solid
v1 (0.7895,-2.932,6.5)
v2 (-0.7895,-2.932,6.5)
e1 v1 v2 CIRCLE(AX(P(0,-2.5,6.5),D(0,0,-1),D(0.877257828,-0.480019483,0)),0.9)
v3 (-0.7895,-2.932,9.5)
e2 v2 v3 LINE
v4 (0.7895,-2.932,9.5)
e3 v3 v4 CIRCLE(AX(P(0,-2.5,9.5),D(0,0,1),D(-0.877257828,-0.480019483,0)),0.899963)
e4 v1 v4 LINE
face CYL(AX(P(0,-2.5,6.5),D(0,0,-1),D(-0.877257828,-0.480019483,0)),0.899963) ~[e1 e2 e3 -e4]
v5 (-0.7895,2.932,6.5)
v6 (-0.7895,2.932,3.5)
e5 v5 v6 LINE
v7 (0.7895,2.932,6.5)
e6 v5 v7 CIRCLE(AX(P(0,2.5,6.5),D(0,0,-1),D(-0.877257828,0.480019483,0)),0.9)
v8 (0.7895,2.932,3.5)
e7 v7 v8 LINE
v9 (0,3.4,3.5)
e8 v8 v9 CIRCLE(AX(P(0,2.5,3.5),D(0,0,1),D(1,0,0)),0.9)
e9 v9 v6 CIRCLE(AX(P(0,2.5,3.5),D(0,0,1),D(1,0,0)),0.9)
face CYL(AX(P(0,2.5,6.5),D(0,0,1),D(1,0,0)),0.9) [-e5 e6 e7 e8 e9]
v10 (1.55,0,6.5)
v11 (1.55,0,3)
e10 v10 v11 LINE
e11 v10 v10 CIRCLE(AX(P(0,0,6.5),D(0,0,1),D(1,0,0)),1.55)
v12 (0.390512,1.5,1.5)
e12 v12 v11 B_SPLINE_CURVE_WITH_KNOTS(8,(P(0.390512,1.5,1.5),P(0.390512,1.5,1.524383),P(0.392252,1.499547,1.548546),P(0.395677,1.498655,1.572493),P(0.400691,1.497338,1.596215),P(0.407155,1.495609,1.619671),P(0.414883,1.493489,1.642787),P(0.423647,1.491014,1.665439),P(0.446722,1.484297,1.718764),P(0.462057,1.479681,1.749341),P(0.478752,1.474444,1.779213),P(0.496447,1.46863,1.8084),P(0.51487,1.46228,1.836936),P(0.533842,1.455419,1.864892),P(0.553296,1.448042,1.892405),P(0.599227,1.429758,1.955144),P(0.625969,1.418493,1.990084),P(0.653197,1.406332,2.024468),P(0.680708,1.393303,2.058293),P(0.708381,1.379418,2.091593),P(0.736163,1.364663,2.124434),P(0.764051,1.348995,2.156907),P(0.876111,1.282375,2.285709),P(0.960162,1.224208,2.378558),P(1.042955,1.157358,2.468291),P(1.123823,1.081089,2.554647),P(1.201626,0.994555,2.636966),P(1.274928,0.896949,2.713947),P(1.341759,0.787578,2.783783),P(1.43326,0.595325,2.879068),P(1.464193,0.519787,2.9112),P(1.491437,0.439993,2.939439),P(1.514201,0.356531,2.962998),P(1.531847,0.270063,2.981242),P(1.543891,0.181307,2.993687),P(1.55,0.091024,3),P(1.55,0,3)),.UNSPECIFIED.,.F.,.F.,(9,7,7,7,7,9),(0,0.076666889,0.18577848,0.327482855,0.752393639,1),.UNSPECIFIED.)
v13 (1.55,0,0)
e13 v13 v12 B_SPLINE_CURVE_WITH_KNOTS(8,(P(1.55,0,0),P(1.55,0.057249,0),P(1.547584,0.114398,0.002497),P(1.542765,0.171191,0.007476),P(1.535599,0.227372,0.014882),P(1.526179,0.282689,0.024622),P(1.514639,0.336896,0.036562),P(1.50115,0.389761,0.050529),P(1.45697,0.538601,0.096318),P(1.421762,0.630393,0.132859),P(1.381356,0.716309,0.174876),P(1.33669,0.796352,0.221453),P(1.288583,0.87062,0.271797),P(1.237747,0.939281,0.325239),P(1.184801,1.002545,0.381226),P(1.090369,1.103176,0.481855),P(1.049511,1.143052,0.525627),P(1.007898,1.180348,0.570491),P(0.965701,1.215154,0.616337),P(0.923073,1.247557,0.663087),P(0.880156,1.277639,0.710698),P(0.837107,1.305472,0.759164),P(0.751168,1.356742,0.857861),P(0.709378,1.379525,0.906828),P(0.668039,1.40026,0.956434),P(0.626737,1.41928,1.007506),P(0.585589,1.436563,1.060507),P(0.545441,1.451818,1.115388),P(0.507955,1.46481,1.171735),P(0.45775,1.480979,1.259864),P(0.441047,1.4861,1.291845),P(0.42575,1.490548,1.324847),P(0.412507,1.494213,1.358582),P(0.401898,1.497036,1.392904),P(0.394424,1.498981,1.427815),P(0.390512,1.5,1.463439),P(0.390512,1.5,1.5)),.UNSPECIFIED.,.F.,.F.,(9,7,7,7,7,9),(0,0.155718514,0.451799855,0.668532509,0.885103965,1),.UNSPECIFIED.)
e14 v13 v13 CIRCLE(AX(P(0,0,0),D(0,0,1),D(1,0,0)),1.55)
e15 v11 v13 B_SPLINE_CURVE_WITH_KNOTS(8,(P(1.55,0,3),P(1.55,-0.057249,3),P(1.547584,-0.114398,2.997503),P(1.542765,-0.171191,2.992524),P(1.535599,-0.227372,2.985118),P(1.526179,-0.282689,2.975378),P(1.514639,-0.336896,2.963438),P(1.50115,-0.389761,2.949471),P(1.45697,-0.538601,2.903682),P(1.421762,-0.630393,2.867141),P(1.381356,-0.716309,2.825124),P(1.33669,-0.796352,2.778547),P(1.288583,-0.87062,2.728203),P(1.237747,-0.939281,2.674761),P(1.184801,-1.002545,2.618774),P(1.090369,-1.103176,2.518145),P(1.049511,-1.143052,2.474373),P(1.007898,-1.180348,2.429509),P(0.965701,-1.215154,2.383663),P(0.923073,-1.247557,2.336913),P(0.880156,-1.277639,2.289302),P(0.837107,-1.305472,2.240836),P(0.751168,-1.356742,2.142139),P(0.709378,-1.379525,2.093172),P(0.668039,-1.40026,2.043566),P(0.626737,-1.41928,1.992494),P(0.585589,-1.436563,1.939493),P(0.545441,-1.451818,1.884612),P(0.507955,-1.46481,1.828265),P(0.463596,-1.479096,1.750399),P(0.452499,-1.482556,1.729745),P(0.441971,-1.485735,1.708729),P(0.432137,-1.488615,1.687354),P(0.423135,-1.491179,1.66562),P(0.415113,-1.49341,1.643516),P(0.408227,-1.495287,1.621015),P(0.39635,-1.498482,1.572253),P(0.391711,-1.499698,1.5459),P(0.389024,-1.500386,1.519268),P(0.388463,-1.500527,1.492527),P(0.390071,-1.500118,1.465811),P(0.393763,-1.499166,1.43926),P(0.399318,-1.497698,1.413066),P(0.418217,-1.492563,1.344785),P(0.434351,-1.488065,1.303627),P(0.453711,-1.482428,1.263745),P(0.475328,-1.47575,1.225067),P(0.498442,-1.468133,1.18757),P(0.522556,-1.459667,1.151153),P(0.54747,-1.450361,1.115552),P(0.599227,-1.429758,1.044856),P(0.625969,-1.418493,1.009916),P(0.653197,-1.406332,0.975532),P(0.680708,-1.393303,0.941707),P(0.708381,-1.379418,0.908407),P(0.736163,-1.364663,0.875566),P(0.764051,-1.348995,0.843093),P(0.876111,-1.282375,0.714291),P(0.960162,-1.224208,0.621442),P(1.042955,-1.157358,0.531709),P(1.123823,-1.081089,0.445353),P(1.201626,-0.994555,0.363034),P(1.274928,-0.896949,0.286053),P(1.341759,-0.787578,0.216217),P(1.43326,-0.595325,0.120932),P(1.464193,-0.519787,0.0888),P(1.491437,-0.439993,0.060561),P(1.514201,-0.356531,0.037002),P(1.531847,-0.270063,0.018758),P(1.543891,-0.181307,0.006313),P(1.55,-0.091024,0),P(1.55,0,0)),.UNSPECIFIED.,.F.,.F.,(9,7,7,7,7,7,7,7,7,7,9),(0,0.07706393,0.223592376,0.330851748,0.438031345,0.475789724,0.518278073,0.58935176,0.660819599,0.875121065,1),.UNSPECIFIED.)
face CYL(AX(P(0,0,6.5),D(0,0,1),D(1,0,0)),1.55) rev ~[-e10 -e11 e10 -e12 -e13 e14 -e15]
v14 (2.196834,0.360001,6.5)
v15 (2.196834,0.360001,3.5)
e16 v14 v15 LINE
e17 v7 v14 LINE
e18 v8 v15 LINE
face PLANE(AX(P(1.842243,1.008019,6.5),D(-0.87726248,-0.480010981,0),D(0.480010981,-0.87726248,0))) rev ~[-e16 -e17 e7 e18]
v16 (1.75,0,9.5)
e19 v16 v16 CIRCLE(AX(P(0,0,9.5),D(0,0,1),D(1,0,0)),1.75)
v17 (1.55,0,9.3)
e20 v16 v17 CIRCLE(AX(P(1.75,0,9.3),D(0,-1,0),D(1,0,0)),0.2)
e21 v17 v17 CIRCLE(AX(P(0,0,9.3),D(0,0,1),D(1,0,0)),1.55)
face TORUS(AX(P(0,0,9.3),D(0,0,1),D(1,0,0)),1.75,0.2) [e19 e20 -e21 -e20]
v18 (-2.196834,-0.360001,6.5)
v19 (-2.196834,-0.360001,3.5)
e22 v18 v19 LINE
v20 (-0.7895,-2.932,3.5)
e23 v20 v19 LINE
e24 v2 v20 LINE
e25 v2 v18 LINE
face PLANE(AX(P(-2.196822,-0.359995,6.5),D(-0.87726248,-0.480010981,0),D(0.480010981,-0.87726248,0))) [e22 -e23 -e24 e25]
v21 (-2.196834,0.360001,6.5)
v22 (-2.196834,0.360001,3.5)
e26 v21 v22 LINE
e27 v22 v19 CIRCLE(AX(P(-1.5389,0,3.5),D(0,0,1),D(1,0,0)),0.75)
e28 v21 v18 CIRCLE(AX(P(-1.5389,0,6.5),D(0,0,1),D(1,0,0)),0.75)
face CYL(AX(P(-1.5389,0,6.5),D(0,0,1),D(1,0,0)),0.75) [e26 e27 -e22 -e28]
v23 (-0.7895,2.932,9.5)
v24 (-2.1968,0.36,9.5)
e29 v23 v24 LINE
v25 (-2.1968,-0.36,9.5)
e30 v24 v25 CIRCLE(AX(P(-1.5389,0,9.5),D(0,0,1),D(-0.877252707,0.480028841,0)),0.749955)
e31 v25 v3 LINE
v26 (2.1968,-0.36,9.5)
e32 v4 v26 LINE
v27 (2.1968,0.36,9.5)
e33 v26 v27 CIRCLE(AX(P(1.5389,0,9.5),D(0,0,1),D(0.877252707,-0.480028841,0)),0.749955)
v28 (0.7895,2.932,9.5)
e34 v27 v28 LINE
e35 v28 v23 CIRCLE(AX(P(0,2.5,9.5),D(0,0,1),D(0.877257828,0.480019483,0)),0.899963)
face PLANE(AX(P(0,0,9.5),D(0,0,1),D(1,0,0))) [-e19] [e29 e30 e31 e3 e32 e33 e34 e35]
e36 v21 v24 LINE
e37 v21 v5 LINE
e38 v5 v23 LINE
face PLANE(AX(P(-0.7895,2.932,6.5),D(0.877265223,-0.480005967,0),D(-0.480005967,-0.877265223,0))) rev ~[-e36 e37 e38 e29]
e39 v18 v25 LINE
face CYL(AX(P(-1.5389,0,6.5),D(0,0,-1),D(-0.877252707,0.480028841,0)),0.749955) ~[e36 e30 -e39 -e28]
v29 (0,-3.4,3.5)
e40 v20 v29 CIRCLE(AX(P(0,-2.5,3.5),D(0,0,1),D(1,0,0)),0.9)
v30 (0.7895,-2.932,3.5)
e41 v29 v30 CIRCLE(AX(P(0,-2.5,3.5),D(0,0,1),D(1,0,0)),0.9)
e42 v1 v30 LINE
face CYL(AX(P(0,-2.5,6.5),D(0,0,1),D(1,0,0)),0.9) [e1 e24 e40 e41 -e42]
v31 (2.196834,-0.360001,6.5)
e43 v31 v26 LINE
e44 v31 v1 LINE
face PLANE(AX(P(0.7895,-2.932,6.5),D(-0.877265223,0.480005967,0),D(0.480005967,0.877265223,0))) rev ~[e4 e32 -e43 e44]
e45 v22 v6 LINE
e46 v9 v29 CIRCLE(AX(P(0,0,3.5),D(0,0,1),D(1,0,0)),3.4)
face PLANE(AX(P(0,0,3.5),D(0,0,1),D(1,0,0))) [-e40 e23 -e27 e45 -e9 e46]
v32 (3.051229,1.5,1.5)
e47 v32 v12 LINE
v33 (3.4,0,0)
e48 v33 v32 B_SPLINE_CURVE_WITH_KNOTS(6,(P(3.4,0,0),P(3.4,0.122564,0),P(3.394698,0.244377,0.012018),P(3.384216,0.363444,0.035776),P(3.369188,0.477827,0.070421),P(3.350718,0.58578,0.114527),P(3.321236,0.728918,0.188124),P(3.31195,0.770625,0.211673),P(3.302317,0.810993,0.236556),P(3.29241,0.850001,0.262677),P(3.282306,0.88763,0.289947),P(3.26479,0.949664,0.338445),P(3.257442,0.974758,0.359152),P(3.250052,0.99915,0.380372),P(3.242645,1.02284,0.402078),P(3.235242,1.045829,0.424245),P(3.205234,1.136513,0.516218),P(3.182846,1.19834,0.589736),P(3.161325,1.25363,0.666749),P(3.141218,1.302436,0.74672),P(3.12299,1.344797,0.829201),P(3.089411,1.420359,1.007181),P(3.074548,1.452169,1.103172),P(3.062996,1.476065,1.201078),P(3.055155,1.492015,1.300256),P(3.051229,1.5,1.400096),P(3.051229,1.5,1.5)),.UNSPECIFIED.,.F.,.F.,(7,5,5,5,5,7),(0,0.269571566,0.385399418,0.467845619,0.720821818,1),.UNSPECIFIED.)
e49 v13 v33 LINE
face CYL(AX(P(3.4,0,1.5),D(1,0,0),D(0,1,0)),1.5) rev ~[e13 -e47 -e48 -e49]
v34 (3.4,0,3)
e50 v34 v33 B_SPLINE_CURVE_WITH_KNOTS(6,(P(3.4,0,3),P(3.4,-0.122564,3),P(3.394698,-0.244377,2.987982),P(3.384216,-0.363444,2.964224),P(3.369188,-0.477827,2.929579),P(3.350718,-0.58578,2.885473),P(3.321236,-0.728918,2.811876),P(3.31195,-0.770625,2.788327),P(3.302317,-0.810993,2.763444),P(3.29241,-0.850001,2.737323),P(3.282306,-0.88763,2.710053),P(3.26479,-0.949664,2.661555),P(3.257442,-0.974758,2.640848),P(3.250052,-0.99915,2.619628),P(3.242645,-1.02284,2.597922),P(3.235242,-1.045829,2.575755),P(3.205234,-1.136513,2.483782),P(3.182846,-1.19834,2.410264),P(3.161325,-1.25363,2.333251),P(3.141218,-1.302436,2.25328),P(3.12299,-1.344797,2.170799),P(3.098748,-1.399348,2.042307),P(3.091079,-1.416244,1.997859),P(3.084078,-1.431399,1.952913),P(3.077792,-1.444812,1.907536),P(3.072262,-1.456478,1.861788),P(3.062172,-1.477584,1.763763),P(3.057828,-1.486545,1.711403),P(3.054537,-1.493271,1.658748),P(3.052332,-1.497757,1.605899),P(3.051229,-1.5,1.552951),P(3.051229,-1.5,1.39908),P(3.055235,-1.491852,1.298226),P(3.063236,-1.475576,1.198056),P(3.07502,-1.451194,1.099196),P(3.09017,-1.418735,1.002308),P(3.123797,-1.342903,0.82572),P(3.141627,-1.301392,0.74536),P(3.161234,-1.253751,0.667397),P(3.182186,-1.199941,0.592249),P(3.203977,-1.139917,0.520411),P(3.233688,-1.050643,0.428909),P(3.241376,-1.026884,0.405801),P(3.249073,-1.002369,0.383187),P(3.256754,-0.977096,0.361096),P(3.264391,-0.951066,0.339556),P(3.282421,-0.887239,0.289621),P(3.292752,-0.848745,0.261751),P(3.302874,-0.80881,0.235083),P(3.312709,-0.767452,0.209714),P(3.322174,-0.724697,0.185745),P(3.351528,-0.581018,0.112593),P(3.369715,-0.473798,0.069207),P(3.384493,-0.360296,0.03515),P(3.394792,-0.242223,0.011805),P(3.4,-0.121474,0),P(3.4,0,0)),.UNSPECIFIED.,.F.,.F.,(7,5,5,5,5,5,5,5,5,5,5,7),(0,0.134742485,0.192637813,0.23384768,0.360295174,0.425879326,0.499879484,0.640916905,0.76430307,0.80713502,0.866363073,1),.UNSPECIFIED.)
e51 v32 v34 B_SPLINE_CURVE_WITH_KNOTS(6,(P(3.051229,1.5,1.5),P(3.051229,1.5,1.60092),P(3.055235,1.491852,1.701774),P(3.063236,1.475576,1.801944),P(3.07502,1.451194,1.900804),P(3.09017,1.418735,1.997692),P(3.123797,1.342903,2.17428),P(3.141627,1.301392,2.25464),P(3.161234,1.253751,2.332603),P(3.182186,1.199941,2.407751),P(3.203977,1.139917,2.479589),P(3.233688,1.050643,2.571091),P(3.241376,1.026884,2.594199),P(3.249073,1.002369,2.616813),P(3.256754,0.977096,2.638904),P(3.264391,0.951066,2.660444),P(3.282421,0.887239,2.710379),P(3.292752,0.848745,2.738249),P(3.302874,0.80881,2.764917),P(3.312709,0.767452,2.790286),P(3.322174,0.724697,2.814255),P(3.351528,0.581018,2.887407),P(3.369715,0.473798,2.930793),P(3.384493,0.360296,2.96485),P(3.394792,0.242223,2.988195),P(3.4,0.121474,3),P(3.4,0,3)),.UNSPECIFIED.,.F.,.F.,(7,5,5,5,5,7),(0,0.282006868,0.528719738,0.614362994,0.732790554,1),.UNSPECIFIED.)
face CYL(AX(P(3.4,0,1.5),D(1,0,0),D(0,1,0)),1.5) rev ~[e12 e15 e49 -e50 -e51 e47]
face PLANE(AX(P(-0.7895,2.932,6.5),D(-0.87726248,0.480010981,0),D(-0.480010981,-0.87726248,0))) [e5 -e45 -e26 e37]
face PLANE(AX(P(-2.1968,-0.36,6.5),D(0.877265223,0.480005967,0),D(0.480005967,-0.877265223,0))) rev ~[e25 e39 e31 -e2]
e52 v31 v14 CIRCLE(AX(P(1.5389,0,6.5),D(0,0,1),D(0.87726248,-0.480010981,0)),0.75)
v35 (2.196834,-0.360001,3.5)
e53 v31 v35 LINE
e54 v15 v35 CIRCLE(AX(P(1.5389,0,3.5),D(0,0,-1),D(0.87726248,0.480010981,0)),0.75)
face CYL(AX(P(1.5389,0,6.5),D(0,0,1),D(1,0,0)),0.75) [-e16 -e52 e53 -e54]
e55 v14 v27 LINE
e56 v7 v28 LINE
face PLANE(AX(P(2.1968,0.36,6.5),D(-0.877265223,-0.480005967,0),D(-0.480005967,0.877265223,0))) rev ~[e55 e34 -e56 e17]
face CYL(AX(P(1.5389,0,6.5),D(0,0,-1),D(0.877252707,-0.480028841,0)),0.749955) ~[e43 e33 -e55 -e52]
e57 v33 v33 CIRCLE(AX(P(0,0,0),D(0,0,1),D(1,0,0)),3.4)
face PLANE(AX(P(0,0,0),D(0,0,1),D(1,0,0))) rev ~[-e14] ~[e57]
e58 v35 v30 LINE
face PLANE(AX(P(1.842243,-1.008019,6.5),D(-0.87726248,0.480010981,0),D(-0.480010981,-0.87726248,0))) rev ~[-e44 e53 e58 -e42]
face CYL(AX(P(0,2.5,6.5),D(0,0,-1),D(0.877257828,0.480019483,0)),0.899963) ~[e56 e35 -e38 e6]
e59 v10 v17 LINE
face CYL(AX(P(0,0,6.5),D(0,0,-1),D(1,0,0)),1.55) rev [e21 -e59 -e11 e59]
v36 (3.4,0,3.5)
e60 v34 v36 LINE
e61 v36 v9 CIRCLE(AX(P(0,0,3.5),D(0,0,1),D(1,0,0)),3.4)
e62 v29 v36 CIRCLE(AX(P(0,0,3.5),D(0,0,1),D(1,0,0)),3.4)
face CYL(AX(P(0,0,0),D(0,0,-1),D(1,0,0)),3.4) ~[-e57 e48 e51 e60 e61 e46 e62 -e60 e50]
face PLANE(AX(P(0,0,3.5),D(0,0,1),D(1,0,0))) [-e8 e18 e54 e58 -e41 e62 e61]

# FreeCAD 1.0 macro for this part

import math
import FreeCAD as App
import Part
import Sketcher

V = App.Vector
Q = App.Units.Quantity


def edges_at(feature, points):
    """Names of the edges that pass closest to the given points."""
    edges = feature.Shape.Edges
    near = lambda p: min(range(len(edges)), key=lambda i: edges[i].distToShape(Part.Vertex(*p))[0])
    return sorted({f"Edge{near(p) + 1}" for p in points})

doc = App.newDocument("Part")
params = doc.addObject("Spreadsheet::Sheet", "Params")
for row, (alias, value) in enumerate([
    ("sketch1_diameter", "6.8 mm"),
    ("pad1_length", "6.5 mm"),
    ("sketch2_diameter", "3.1 mm"),
    ("pocket1_length", "6.5 mm"),
    ("sketch3_diameter", "3 mm"),
    ("pocket2_length", "3.0095 mm"),
    ("sketch4_radius", "0.9 mm"),
    ("sketch4_radius2", "0.75 mm"),
    ("sketch4_radius3", "3.4 mm"),
    ("pocket3_length", "3 mm"),
    ("sketch5_diameter", "3.1 mm"),
    ("sketch5_radius", "0.9 mm"),
    ("sketch5_radius2", "0.75 mm"),
    ("pad2_length", "3 mm"),
    ("fillet_radius", "0.2 mm"),
], start=1):
    params.set(f"A{row}", alias)
    params.set(f"B{row}", "=" + value)
    params.setAlias(f"B{row}", alias)

body = doc.addObject("PartDesign::Body", "Body")

# Sketch on XY plane
sketch1 = body.newObject("Sketcher::SketchObject", "Sketch")
sketch1.AttachmentSupport = (doc.getObject("XY_Plane"), [""])
sketch1.MapMode = "FlatFace"
sketch1.addGeometry(Part.Circle(V(0, 0, 0), V(0, 0, 1), 3.4), False)
sketch1.addConstraint(Sketcher.Constraint("Coincident", 0, 3, -1, 1))
sketch1.addConstraint(Sketcher.Constraint("Diameter", 0, Q("6.8 mm")))
sketch1.setExpression("Constraints[1]", "Params.sketch1_diameter")
pad1 = body.newObject("PartDesign::Pad", "Pad")
pad1.Profile = sketch1
pad1.setExpression("Length", "Params.pad1_length")

# Sketch on XY plane
sketch2 = body.newObject("Sketcher::SketchObject", "Sketch001")
sketch2.AttachmentSupport = (doc.getObject("XY_Plane"), [""])
sketch2.MapMode = "FlatFace"
sketch2.AttachmentOffset = App.Placement(V(0, 0, 6.5), App.Rotation())
sketch2.addGeometry(Part.Circle(V(0, 0, 0), V(0, 0, 1), 1.6), False)
sketch2.addConstraint(Sketcher.Constraint("Coincident", 0, 3, -1, 1))
sketch2.addConstraint(Sketcher.Constraint("Diameter", 0, Q("3.1 mm")))
sketch2.setExpression("Constraints[1]", "Params.sketch2_diameter")
pocket1 = body.newObject("PartDesign::Pocket", "Pocket")
pocket1.Profile = sketch2
pocket1.setExpression("Length", "Params.pocket1_length")

# Sketch on YZ plane
sketch3 = body.newObject("Sketcher::SketchObject", "Sketch002")
sketch3.AttachmentSupport = (doc.getObject("YZ_Plane"), [""])
sketch3.MapMode = "FlatFace"
sketch3.AttachmentOffset = App.Placement(V(0, 0, 3.4), App.Rotation())
sketch3.addGeometry(Part.Circle(V(0, 1.5, 0), V(0, 0, 1), 1.5), False)
sketch3.addConstraint(Sketcher.Constraint("PointOnObject", 0, 3, -2))
sketch3.addConstraint(Sketcher.Constraint("Diameter", 0, Q("3 mm")))
sketch3.addConstraint(Sketcher.Constraint("DistanceY", -1, 1, 0, 3, Q("1.5 mm")))
sketch3.setExpression("Constraints[1]", "Params.sketch3_diameter")
pocket2 = body.newObject("PartDesign::Pocket", "Pocket001")
pocket2.Profile = sketch3
pocket2.setExpression("Length", "Params.pocket2_length")

# Sketch on XY plane
sketch4 = body.newObject("Sketcher::SketchObject", "Sketch003")
sketch4.AttachmentSupport = (doc.getObject("XY_Plane"), [""])
sketch4.MapMode = "FlatFace"
sketch4.AttachmentOffset = App.Placement(V(0, 0, 6.5), App.Rotation())
sketch4.addGeometry(Part.ArcOfCircle(Part.Circle(V(0, 2.5, 0), V(0, 0, 1), 0.9), math.radians(29), math.radians(90)), False)
sketch4.addGeometry(Part.LineSegment(V(0.8, 2.9, 0), V(2.2, 0.4, 0)), False)
sketch4.addGeometry(Part.ArcOfCircle(Part.Circle(V(1.5, 0, 0), V(0, 0, 1), 0.8), math.radians(-29), math.radians(29)), False)
sketch4.addGeometry(Part.LineSegment(V(2.2, -0.4, 0), V(0.8, -2.9, 0)), False)
sketch4.addGeometry(Part.ArcOfCircle(Part.Circle(V(0, -2.5, 0), V(0, 0, 1), 0.9), math.radians(-90), math.radians(-29)), False)
sketch4.addGeometry(Part.ArcOfCircle(Part.Circle(V(0, 0, 0), V(0, 0, 1), 3.4), math.radians(-90), math.radians(90)), False)
sketch4.addGeometry(Part.ArcOfCircle(Part.Circle(V(0, 2.5, 0), V(0, 0, 1), 0.9), math.radians(90), math.radians(151)), False)
sketch4.addGeometry(Part.ArcOfCircle(Part.Circle(V(0, 0, 0), V(0, 0, 1), 3.4), math.radians(90), math.radians(270)), False)
sketch4.addGeometry(Part.ArcOfCircle(Part.Circle(V(0, -2.5, 0), V(0, 0, 1), 0.9), math.radians(-151), math.radians(-90)), False)
sketch4.addGeometry(Part.LineSegment(V(-0.8, -2.9, 0), V(-2.2, -0.4, 0)), False)
sketch4.addGeometry(Part.ArcOfCircle(Part.Circle(V(-1.5, 0, 0), V(0, 0, 1), 0.8), math.radians(151), math.radians(209)), False)
sketch4.addGeometry(Part.LineSegment(V(-2.2, 0.4, 0), V(-0.8, 2.9, 0)), False)
sketch4.addConstraint(Sketcher.Constraint("Tangent", 0, 1, 1, 1))
sketch4.addConstraint(Sketcher.Constraint("Tangent", 1, 2, 2, 2))
sketch4.addConstraint(Sketcher.Constraint("Tangent", 2, 1, 3, 1))
sketch4.addConstraint(Sketcher.Constraint("Tangent", 3, 2, 4, 2))
sketch4.addConstraint(Sketcher.Constraint("Tangent", 4, 1, 5, 1))
sketch4.addConstraint(Sketcher.Constraint("Tangent", 5, 2, 0, 2))
sketch4.addConstraint(Sketcher.Constraint("Tangent", 6, 1, 7, 1))
sketch4.addConstraint(Sketcher.Constraint("Tangent", 7, 2, 8, 2))
sketch4.addConstraint(Sketcher.Constraint("Tangent", 8, 1, 9, 1))
sketch4.addConstraint(Sketcher.Constraint("Tangent", 9, 2, 10, 2))
sketch4.addConstraint(Sketcher.Constraint("Tangent", 10, 1, 11, 1))
sketch4.addConstraint(Sketcher.Constraint("Tangent", 11, 2, 6, 2))
sketch4.addConstraint(Sketcher.Constraint("Coincident", 5, 3, -1, 1))
sketch4.addConstraint(Sketcher.Constraint("Coincident", 7, 3, -1, 1))
sketch4.addConstraint(Sketcher.Constraint("Coincident", 6, 3, 0, 3))
sketch4.addConstraint(Sketcher.Constraint("Coincident", 8, 3, 4, 3))
sketch4.addConstraint(Sketcher.Constraint("Equal", 0, 4))
sketch4.addConstraint(Sketcher.Constraint("Equal", 4, 6))
sketch4.addConstraint(Sketcher.Constraint("Equal", 2, 10))
sketch4.addConstraint(Sketcher.Constraint("Symmetric", 2, 3, 10, 3, -1, 1))
sketch4.addConstraint(Sketcher.Constraint("Symmetric", 3, 2, 8, 1, -2))
sketch4.addConstraint(Sketcher.Constraint("PointOnObject", 0, 3, -2))
sketch4.addConstraint(Sketcher.Constraint("Radius", 0, Q("0.9 mm")))
sketch4.addConstraint(Sketcher.Constraint("Radius", 2, Q("0.75 mm")))
sketch4.addConstraint(Sketcher.Constraint("Radius", 5, Q("3.4 mm")))
sketch4.addConstraint(Sketcher.Constraint("DistanceY", -1, 1, 1, 2, Q("0.36 mm")))
sketch4.setExpression("Constraints[22]", "Params.sketch4_radius")
sketch4.setExpression("Constraints[23]", "Params.sketch4_radius2")
sketch4.setExpression("Constraints[24]", "Params.sketch4_radius3")
pocket3 = body.newObject("PartDesign::Pocket", "Pocket002")
pocket3.Profile = sketch4
pocket3.setExpression("Length", "Params.pocket3_length")

# Sketch on XY plane
sketch5 = body.newObject("Sketcher::SketchObject", "Sketch004")
sketch5.AttachmentSupport = (doc.getObject("XY_Plane"), [""])
sketch5.MapMode = "FlatFace"
sketch5.AttachmentOffset = App.Placement(V(0, 0, 6.5), App.Rotation())
sketch5.addGeometry(Part.LineSegment(V(-2.2, -0.4, 0), V(-0.8, -2.9, 0)), False)
sketch5.addGeometry(Part.ArcOfCircle(Part.Circle(V(0, -2.5, 0), V(0, 0, 1), 0.9), math.radians(-151), math.radians(-29)), False)
sketch5.addGeometry(Part.LineSegment(V(0.8, -2.9, 0), V(2.2, -0.4, 0)), False)
sketch5.addGeometry(Part.ArcOfCircle(Part.Circle(V(1.5, 0, 0), V(0, 0, 1), 0.7), math.radians(-29), math.radians(29)), False)
sketch5.addGeometry(Part.LineSegment(V(2.2, 0.4, 0), V(0.8, 2.9, 0)), False)
sketch5.addGeometry(Part.ArcOfCircle(Part.Circle(V(0, 2.5, 0), V(0, 0, 1), 0.9), math.radians(29), math.radians(151)), False)
sketch5.addGeometry(Part.LineSegment(V(-0.8, 2.9, 0), V(-2.2, 0.4, 0)), False)
sketch5.addGeometry(Part.ArcOfCircle(Part.Circle(V(-1.5, 0, 0), V(0, 0, 1), 0.7), math.radians(151), math.radians(209)), False)
sketch5.addGeometry(Part.Circle(V(0, 0, 0), V(0, 0, 1), 1.6), False)
sketch5.addConstraint(Sketcher.Constraint("Tangent", 0, 2, 1, 1))
sketch5.addConstraint(Sketcher.Constraint("Tangent", 1, 2, 2, 1))
sketch5.addConstraint(Sketcher.Constraint("Tangent", 2, 2, 3, 1))
sketch5.addConstraint(Sketcher.Constraint("Tangent", 3, 2, 4, 1))
sketch5.addConstraint(Sketcher.Constraint("Tangent", 4, 2, 5, 1))
sketch5.addConstraint(Sketcher.Constraint("Tangent", 5, 2, 6, 1))
sketch5.addConstraint(Sketcher.Constraint("Tangent", 6, 2, 7, 1))
sketch5.addConstraint(Sketcher.Constraint("Tangent", 7, 2, 0, 1))
sketch5.addConstraint(Sketcher.Constraint("Coincident", 8, 3, -1, 1))
sketch5.addConstraint(Sketcher.Constraint("Equal", 1, 5))
sketch5.addConstraint(Sketcher.Constraint("Equal", 3, 7))
sketch5.addConstraint(Sketcher.Constraint("Symmetric", 1, 3, 5, 3, -1, 1))
sketch5.addConstraint(Sketcher.Constraint("Symmetric", 3, 3, 7, 3, -1, 1))
sketch5.addConstraint(Sketcher.Constraint("Symmetric", 0, 2, 1, 2, -2))
sketch5.addConstraint(Sketcher.Constraint("Diameter", 8, Q("3.1 mm")))
sketch5.addConstraint(Sketcher.Constraint("Radius", 1, Q("0.9 mm")))
sketch5.addConstraint(Sketcher.Constraint("Radius", 3, Q("0.75 mm")))
sketch5.addConstraint(Sketcher.Constraint("DistanceY", 1, 3, 5, 3, Q("5 mm")))
sketch5.addConstraint(Sketcher.Constraint("DistanceY", 2, 2, -1, 1, Q("0.36 mm")))
sketch5.setExpression("Constraints[14]", "Params.sketch5_diameter")
sketch5.setExpression("Constraints[15]", "Params.sketch5_radius")
sketch5.setExpression("Constraints[16]", "Params.sketch5_radius2")
pad2 = body.newObject("PartDesign::Pad", "Pad001")
pad2.Profile = sketch5
pad2.setExpression("Length", "Params.pad2_length")
doc.recompute()

fillet = body.newObject("PartDesign::Fillet", "Fillet")
fillet.Base = (pad2, edges_at(pad2, [(-1.55, 0, 9.5)]))
fillet.setExpression("Radius", "Params.fillet_radius")

doc.recompute()
